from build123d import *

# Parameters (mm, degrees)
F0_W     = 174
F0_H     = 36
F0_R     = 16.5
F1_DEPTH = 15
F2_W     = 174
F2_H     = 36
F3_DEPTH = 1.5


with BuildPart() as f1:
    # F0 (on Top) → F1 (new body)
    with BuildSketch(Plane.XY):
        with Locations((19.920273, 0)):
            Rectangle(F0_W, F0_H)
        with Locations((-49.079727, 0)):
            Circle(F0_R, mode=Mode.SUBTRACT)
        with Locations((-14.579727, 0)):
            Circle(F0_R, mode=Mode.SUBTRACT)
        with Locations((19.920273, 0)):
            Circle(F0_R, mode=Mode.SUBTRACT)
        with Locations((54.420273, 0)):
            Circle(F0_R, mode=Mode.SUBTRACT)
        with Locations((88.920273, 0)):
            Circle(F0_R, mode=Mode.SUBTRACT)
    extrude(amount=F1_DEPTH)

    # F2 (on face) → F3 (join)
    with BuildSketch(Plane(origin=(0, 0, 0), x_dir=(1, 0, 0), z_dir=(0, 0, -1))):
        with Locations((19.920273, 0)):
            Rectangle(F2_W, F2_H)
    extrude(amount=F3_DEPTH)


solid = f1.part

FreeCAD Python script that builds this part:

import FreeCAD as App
import Part
import Sketcher
from FreeCAD import Vector


def add_polygon(sketch, points):
    """Adds a closed chain of lines whose ends are joined by coincident constraints."""
    first, n = sketch.GeometryCount, len(points)
    for a, b in zip(points, points[1:] + points[:1]):
        sketch.addGeometry(Part.LineSegment(App.Vector(*a, 0), App.Vector(*b, 0)), False)
    for i in range(n):
        sketch.addConstraint(Sketcher.Constraint("Coincident", first + i, 2, first + (i + 1) % n, 1))

doc = App.newDocument("Part")
body = doc.addObject("PartDesign::Body", "Body")

sketch1 = body.newObject("Sketcher::SketchObject", "Sketch")
sketch1.AttachmentSupport = (doc.getObject("XY_Plane"), [""])
sketch1.MapMode = "FlatFace"
add_polygon(sketch1, [(-67, 18), (-67, -18), (107, -18), (107, 18)])
sketch1.addGeometry(Part.Circle(Vector(-49, 0, 0), Vector(0, 0, 1), 16), False)
sketch1.addGeometry(Part.Circle(Vector(-15, 0, 0), Vector(0, 0, 1), 16), False)
sketch1.addGeometry(Part.Circle(Vector(20, 0, 0), Vector(0, 0, 1), 16), False)
sketch1.addGeometry(Part.Circle(Vector(54, 0, 0), Vector(0, 0, 1), 16), False)
sketch1.addGeometry(Part.Circle(Vector(89, 0, 0), Vector(0, 0, 1), 16), False)
sketch1.addConstraint([
    Sketcher.Constraint("Vertical", 0),
    Sketcher.Constraint("Horizontal", 1),
    Sketcher.Constraint("Vertical", 2),
    Sketcher.Constraint("Horizontal", 3),
    Sketcher.Constraint("Equal", 4, 5),
    Sketcher.Constraint("Equal", 5, 6),
    Sketcher.Constraint("Equal", 6, 7),
    Sketcher.Constraint("Equal", 7, 8),
    Sketcher.Constraint("PointOnObject", 4, 3, -1),
    Sketcher.Constraint("PointOnObject", 5, 3, -1),
    Sketcher.Constraint("PointOnObject", 6, 3, -1),
    Sketcher.Constraint("PointOnObject", 7, 3, -1),
    Sketcher.Constraint("PointOnObject", 8, 3, -1),
    Sketcher.Constraint("Diameter", 4, 33.0),
    Sketcher.Constraint("DistanceX", 1, 1, 1, 2, 174.0),
    Sketcher.Constraint("DistanceY", 0, 2, 0, 1, 36.0),
    Sketcher.Constraint("DistanceY", 0, 2, -1, 1, 18.0),
    Sketcher.Constraint("DistanceX", 4, 3, 6, 3, 69.0),
    Sketcher.Constraint("DistanceX", 5, 3, 7, 3, 69.0),
    Sketcher.Constraint("DistanceX", 6, 3, 8, 3, 69.0),
    Sketcher.Constraint("DistanceX", 0, 2, 4, 3, 18.0),
    Sketcher.Constraint("DistanceX", 4, 3, 5, 3, 34.5),
    Sketcher.Constraint("DistanceX", 4, 3, -1, 1, 49.079727),
])
pad1 = body.newObject("PartDesign::Pad", "Pad")
pad1.Profile = sketch1
pad1.Length = 15

sketch2 = body.newObject("Sketcher::SketchObject", "Sketch001")
sketch2.AttachmentSupport = (doc.getObject("XY_Plane"), [""])
sketch2.MapMode = "FlatFace"
add_polygon(sketch2, [(-67, -18), (-67, 18), (107, 18), (107, -18)])
sketch2.addConstraint([
    Sketcher.Constraint("Vertical", 0),
    Sketcher.Constraint("Horizontal", 1),
    Sketcher.Constraint("Vertical", 2),
    Sketcher.Constraint("Horizontal", 3),
    Sketcher.Constraint("DistanceX", 1, 1, 1, 2, 174.0),
    Sketcher.Constraint("DistanceY", 0, 1, 0, 2, 36.0),
    Sketcher.Constraint("DistanceY", -1, 1, 0, 2, 18.0),
    Sketcher.Constraint("DistanceX", 0, 2, -1, 1, 67.079727),
])
pad2 = body.newObject("PartDesign::Pad", "Pad001")
pad2.Profile = sketch2
pad2.Length = 1.5
pad2.Reversed = True

doc.recompute()
